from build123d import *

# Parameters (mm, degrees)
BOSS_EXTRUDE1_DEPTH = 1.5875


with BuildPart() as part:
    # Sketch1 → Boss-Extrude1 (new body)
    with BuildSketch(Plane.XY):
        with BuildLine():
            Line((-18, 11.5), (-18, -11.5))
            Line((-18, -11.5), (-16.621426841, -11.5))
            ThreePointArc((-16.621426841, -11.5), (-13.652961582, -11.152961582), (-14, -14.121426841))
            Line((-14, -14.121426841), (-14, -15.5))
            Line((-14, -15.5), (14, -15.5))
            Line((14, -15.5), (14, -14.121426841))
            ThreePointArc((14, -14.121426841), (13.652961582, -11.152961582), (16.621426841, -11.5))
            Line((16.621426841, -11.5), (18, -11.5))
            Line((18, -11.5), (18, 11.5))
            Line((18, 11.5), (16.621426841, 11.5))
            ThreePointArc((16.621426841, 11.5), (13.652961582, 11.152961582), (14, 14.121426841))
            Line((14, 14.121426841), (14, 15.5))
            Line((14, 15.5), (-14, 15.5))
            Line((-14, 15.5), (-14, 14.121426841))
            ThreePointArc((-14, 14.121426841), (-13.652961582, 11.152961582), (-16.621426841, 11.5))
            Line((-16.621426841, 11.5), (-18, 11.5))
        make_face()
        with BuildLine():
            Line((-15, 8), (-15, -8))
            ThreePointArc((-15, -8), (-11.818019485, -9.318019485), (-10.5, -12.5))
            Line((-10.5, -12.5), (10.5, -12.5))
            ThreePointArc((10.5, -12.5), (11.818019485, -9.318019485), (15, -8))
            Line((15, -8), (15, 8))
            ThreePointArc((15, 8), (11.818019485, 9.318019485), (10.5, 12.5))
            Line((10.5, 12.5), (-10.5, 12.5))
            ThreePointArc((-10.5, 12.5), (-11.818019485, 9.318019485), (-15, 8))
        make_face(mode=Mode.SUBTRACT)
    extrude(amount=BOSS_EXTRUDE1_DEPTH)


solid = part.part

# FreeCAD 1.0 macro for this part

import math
import FreeCAD as App
import Part
import Sketcher
from FreeCAD import Vector

doc = App.newDocument("Part")
body = doc.addObject("PartDesign::Body", "Body")

sketch1 = doc.addObject("Sketcher::SketchObject", "Sketch")
body.addObject(sketch1)
sketch1.AttachmentSupport = (doc.XY_Plane, [""])
sketch1.MapMode = "FlatFace"
sketch1.addGeometry([
    Part.LineSegment(Vector(-18, 11.5, 0), Vector(-18, -11.5, 0)),
    Part.LineSegment(Vector(-18, -11.5, 0), Vector(-16.6, -11.5, 0)),
    Part.ArcOfCircle(Part.Circle(Vector(-15, -12.5, 0), Vector(0, 0, 1), 1.9), math.radians(-58), math.radians(148)),
    Part.LineSegment(Vector(-14, -14.1, 0), Vector(-14, -15.5, 0)),
    Part.LineSegment(Vector(-14, -15.5, 0), Vector(14, -15.5, 0)),
    Part.LineSegment(Vector(14, -15.5, 0), Vector(14, -14.1, 0)),
    Part.ArcOfCircle(Part.Circle(Vector(15, -12.5, 0), Vector(0, 0, 1), 1.9), math.radians(32), math.radians(238)),
    Part.LineSegment(Vector(16.6, -11.5, 0), Vector(18, -11.5, 0)),
    Part.LineSegment(Vector(18, -11.5, 0), Vector(18, 11.5, 0)),
    Part.LineSegment(Vector(18, 11.5, 0), Vector(16.6, 11.5, 0)),
    Part.ArcOfCircle(Part.Circle(Vector(15, 12.5, 0), Vector(0, 0, 1), 1.9), math.radians(122), math.radians(328)),
    Part.LineSegment(Vector(14, 14.1, 0), Vector(14, 15.5, 0)),
    Part.LineSegment(Vector(14, 15.5, 0), Vector(-14, 15.5, 0)),
    Part.LineSegment(Vector(-14, 15.5, 0), Vector(-14, 14.1, 0)),
    Part.ArcOfCircle(Part.Circle(Vector(-15, 12.5, 0), Vector(0, 0, 1), 1.9), math.radians(-148), math.radians(58)),
    Part.LineSegment(Vector(-16.6, 11.5, 0), Vector(-18, 11.5, 0)),
    Part.LineSegment(Vector(-15, -8, 0), Vector(-15, 8, 0)),
    Part.ArcOfCircle(Part.Circle(Vector(-15, 12.5, 0), Vector(0, 0, 1), 4.5), math.radians(-90), math.radians(0)),
    Part.LineSegment(Vector(-10.5, 12.5, 0), Vector(10.5, 12.5, 0)),
    Part.ArcOfCircle(Part.Circle(Vector(15, 12.5, 0), Vector(0, 0, 1), 4.5), math.radians(-180), math.radians(-90)),
    Part.LineSegment(Vector(15, 8, 0), Vector(15, -8, 0)),
    Part.ArcOfCircle(Part.Circle(Vector(15, -12.5, 0), Vector(0, 0, 1), 4.5), math.radians(90), math.radians(180)),
    Part.LineSegment(Vector(10.5, -12.5, 0), Vector(-10.5, -12.5, 0)),
    Part.ArcOfCircle(Part.Circle(Vector(-15, -12.5, 0), Vector(0, 0, 1), 4.5), math.radians(0), math.radians(90)),
], False)
sketch1.addConstraint([
    Sketcher.Constraint("Coincident", 0, 2, 1, 1),
    Sketcher.Constraint("Coincident", 1, 2, 2, 2),
    Sketcher.Constraint("Coincident", 2, 1, 3, 1),
    Sketcher.Constraint("Coincident", 3, 2, 4, 1),
    Sketcher.Constraint("Coincident", 4, 2, 5, 1),
    Sketcher.Constraint("Coincident", 5, 2, 6, 2),
    Sketcher.Constraint("Coincident", 6, 1, 7, 1),
    Sketcher.Constraint("Coincident", 7, 2, 8, 1),
    Sketcher.Constraint("Coincident", 8, 2, 9, 1),
    Sketcher.Constraint("Coincident", 9, 2, 10, 2),
    Sketcher.Constraint("Coincident", 10, 1, 11, 1),
    Sketcher.Constraint("Coincident", 11, 2, 12, 1),
    Sketcher.Constraint("Coincident", 12, 2, 13, 1),
    Sketcher.Constraint("Coincident", 13, 2, 14, 2),
    Sketcher.Constraint("Coincident", 14, 1, 15, 1),
    Sketcher.Constraint("Coincident", 15, 2, 0, 1),
    Sketcher.Constraint("Coincident", 16, 2, 17, 1),
    Sketcher.Constraint("Coincident", 17, 2, 18, 1),
    Sketcher.Constraint("Coincident", 18, 2, 19, 1),
    Sketcher.Constraint("Coincident", 19, 2, 20, 1),
    Sketcher.Constraint("Coincident", 20, 2, 21, 1),
    Sketcher.Constraint("Coincident", 21, 2, 22, 1),
    Sketcher.Constraint("Coincident", 22, 2, 23, 1),
    Sketcher.Constraint("Coincident", 23, 2, 16, 1),
    Sketcher.Constraint("Vertical", 0),
    Sketcher.Constraint("Horizontal", 1),
    Sketcher.Constraint("Vertical", 3),
    Sketcher.Constraint("Horizontal", 4),
    Sketcher.Constraint("Vertical", 5),
    Sketcher.Constraint("Horizontal", 7),
    Sketcher.Constraint("Vertical", 8),
    Sketcher.Constraint("Horizontal", 9),
    Sketcher.Constraint("Vertical", 11),
    Sketcher.Constraint("Horizontal", 12),
    Sketcher.Constraint("Vertical", 13),
    Sketcher.Constraint("Horizontal", 15),
    Sketcher.Constraint("Vertical", 16),
    Sketcher.Constraint("Horizontal", 18),
    Sketcher.Constraint("Vertical", 20),
    Sketcher.Constraint("Horizontal", 22),
    Sketcher.Constraint("Coincident", 17, 3, 14, 3),
    Sketcher.Constraint("Coincident", 19, 3, 10, 3),
    Sketcher.Constraint("Coincident", 21, 3, 6, 3),
    Sketcher.Constraint("Coincident", 23, 3, 2, 3),
    Sketcher.Constraint("Equal", 2, 6),
    Sketcher.Constraint("Equal", 6, 10),
    Sketcher.Constraint("Equal", 10, 14),
    Sketcher.Constraint("Equal", 17, 19),
    Sketcher.Constraint("Equal", 19, 21),
    Sketcher.Constraint("Equal", 21, 23),
    Sketcher.Constraint("Symmetric", 2, 3, 10, 3, -1, 1),
    Sketcher.Constraint("Symmetric", 6, 3, 14, 3, -1, 1),
    Sketcher.Constraint("Symmetric", 0, 2, 8, 2, -1, 1),
    Sketcher.Constraint("Symmetric", 3, 2, 11, 2, -1, 1),
    Sketcher.Constraint("Symmetric", 2, 3, 6, 3, -2),
    Sketcher.Constraint("Horizontal", 2, 1, 5, 2),
    Sketcher.Constraint("Horizontal", 1, 2, 6, 1),
    Sketcher.Constraint("Horizontal", 10, 1, 13, 2),
    Sketcher.Constraint("Horizontal", 9, 2, 14, 1),
    Sketcher.Constraint("Horizontal", 19, 3, 17, 2),
    Sketcher.Constraint("Horizontal", 23, 3, 21, 2),
    Sketcher.Constraint("Vertical", 23, 3, 16, 2),
    Sketcher.Constraint("Vertical", 21, 3, 19, 2),
    Sketcher.Constraint("Equal", 15, 3),
    Sketcher.Constraint("Radius", 17, 4.5),
    Sketcher.Constraint("DistanceX", 4, 1, 4, 2, 28.0),
    Sketcher.Constraint("DistanceX", 18, 1, 18, 2, 21.0),
    Sketcher.Constraint("DistanceY", 0, 2, 0, 1, 23.0),
    Sketcher.Constraint("DistanceY", 16, 1, 16, 2, 16.0),
    Sketcher.Constraint("DistanceX", 0, 2, -1, 1, 18.0),
    Sketcher.Constraint("Radius", 2, 1.905),
])
pad1 = doc.addObject("PartDesign::Pad", "Pad")
body.addObject(pad1)
pad1.Profile = sketch1
pad1.Length = 1.5875

doc.recompute()
